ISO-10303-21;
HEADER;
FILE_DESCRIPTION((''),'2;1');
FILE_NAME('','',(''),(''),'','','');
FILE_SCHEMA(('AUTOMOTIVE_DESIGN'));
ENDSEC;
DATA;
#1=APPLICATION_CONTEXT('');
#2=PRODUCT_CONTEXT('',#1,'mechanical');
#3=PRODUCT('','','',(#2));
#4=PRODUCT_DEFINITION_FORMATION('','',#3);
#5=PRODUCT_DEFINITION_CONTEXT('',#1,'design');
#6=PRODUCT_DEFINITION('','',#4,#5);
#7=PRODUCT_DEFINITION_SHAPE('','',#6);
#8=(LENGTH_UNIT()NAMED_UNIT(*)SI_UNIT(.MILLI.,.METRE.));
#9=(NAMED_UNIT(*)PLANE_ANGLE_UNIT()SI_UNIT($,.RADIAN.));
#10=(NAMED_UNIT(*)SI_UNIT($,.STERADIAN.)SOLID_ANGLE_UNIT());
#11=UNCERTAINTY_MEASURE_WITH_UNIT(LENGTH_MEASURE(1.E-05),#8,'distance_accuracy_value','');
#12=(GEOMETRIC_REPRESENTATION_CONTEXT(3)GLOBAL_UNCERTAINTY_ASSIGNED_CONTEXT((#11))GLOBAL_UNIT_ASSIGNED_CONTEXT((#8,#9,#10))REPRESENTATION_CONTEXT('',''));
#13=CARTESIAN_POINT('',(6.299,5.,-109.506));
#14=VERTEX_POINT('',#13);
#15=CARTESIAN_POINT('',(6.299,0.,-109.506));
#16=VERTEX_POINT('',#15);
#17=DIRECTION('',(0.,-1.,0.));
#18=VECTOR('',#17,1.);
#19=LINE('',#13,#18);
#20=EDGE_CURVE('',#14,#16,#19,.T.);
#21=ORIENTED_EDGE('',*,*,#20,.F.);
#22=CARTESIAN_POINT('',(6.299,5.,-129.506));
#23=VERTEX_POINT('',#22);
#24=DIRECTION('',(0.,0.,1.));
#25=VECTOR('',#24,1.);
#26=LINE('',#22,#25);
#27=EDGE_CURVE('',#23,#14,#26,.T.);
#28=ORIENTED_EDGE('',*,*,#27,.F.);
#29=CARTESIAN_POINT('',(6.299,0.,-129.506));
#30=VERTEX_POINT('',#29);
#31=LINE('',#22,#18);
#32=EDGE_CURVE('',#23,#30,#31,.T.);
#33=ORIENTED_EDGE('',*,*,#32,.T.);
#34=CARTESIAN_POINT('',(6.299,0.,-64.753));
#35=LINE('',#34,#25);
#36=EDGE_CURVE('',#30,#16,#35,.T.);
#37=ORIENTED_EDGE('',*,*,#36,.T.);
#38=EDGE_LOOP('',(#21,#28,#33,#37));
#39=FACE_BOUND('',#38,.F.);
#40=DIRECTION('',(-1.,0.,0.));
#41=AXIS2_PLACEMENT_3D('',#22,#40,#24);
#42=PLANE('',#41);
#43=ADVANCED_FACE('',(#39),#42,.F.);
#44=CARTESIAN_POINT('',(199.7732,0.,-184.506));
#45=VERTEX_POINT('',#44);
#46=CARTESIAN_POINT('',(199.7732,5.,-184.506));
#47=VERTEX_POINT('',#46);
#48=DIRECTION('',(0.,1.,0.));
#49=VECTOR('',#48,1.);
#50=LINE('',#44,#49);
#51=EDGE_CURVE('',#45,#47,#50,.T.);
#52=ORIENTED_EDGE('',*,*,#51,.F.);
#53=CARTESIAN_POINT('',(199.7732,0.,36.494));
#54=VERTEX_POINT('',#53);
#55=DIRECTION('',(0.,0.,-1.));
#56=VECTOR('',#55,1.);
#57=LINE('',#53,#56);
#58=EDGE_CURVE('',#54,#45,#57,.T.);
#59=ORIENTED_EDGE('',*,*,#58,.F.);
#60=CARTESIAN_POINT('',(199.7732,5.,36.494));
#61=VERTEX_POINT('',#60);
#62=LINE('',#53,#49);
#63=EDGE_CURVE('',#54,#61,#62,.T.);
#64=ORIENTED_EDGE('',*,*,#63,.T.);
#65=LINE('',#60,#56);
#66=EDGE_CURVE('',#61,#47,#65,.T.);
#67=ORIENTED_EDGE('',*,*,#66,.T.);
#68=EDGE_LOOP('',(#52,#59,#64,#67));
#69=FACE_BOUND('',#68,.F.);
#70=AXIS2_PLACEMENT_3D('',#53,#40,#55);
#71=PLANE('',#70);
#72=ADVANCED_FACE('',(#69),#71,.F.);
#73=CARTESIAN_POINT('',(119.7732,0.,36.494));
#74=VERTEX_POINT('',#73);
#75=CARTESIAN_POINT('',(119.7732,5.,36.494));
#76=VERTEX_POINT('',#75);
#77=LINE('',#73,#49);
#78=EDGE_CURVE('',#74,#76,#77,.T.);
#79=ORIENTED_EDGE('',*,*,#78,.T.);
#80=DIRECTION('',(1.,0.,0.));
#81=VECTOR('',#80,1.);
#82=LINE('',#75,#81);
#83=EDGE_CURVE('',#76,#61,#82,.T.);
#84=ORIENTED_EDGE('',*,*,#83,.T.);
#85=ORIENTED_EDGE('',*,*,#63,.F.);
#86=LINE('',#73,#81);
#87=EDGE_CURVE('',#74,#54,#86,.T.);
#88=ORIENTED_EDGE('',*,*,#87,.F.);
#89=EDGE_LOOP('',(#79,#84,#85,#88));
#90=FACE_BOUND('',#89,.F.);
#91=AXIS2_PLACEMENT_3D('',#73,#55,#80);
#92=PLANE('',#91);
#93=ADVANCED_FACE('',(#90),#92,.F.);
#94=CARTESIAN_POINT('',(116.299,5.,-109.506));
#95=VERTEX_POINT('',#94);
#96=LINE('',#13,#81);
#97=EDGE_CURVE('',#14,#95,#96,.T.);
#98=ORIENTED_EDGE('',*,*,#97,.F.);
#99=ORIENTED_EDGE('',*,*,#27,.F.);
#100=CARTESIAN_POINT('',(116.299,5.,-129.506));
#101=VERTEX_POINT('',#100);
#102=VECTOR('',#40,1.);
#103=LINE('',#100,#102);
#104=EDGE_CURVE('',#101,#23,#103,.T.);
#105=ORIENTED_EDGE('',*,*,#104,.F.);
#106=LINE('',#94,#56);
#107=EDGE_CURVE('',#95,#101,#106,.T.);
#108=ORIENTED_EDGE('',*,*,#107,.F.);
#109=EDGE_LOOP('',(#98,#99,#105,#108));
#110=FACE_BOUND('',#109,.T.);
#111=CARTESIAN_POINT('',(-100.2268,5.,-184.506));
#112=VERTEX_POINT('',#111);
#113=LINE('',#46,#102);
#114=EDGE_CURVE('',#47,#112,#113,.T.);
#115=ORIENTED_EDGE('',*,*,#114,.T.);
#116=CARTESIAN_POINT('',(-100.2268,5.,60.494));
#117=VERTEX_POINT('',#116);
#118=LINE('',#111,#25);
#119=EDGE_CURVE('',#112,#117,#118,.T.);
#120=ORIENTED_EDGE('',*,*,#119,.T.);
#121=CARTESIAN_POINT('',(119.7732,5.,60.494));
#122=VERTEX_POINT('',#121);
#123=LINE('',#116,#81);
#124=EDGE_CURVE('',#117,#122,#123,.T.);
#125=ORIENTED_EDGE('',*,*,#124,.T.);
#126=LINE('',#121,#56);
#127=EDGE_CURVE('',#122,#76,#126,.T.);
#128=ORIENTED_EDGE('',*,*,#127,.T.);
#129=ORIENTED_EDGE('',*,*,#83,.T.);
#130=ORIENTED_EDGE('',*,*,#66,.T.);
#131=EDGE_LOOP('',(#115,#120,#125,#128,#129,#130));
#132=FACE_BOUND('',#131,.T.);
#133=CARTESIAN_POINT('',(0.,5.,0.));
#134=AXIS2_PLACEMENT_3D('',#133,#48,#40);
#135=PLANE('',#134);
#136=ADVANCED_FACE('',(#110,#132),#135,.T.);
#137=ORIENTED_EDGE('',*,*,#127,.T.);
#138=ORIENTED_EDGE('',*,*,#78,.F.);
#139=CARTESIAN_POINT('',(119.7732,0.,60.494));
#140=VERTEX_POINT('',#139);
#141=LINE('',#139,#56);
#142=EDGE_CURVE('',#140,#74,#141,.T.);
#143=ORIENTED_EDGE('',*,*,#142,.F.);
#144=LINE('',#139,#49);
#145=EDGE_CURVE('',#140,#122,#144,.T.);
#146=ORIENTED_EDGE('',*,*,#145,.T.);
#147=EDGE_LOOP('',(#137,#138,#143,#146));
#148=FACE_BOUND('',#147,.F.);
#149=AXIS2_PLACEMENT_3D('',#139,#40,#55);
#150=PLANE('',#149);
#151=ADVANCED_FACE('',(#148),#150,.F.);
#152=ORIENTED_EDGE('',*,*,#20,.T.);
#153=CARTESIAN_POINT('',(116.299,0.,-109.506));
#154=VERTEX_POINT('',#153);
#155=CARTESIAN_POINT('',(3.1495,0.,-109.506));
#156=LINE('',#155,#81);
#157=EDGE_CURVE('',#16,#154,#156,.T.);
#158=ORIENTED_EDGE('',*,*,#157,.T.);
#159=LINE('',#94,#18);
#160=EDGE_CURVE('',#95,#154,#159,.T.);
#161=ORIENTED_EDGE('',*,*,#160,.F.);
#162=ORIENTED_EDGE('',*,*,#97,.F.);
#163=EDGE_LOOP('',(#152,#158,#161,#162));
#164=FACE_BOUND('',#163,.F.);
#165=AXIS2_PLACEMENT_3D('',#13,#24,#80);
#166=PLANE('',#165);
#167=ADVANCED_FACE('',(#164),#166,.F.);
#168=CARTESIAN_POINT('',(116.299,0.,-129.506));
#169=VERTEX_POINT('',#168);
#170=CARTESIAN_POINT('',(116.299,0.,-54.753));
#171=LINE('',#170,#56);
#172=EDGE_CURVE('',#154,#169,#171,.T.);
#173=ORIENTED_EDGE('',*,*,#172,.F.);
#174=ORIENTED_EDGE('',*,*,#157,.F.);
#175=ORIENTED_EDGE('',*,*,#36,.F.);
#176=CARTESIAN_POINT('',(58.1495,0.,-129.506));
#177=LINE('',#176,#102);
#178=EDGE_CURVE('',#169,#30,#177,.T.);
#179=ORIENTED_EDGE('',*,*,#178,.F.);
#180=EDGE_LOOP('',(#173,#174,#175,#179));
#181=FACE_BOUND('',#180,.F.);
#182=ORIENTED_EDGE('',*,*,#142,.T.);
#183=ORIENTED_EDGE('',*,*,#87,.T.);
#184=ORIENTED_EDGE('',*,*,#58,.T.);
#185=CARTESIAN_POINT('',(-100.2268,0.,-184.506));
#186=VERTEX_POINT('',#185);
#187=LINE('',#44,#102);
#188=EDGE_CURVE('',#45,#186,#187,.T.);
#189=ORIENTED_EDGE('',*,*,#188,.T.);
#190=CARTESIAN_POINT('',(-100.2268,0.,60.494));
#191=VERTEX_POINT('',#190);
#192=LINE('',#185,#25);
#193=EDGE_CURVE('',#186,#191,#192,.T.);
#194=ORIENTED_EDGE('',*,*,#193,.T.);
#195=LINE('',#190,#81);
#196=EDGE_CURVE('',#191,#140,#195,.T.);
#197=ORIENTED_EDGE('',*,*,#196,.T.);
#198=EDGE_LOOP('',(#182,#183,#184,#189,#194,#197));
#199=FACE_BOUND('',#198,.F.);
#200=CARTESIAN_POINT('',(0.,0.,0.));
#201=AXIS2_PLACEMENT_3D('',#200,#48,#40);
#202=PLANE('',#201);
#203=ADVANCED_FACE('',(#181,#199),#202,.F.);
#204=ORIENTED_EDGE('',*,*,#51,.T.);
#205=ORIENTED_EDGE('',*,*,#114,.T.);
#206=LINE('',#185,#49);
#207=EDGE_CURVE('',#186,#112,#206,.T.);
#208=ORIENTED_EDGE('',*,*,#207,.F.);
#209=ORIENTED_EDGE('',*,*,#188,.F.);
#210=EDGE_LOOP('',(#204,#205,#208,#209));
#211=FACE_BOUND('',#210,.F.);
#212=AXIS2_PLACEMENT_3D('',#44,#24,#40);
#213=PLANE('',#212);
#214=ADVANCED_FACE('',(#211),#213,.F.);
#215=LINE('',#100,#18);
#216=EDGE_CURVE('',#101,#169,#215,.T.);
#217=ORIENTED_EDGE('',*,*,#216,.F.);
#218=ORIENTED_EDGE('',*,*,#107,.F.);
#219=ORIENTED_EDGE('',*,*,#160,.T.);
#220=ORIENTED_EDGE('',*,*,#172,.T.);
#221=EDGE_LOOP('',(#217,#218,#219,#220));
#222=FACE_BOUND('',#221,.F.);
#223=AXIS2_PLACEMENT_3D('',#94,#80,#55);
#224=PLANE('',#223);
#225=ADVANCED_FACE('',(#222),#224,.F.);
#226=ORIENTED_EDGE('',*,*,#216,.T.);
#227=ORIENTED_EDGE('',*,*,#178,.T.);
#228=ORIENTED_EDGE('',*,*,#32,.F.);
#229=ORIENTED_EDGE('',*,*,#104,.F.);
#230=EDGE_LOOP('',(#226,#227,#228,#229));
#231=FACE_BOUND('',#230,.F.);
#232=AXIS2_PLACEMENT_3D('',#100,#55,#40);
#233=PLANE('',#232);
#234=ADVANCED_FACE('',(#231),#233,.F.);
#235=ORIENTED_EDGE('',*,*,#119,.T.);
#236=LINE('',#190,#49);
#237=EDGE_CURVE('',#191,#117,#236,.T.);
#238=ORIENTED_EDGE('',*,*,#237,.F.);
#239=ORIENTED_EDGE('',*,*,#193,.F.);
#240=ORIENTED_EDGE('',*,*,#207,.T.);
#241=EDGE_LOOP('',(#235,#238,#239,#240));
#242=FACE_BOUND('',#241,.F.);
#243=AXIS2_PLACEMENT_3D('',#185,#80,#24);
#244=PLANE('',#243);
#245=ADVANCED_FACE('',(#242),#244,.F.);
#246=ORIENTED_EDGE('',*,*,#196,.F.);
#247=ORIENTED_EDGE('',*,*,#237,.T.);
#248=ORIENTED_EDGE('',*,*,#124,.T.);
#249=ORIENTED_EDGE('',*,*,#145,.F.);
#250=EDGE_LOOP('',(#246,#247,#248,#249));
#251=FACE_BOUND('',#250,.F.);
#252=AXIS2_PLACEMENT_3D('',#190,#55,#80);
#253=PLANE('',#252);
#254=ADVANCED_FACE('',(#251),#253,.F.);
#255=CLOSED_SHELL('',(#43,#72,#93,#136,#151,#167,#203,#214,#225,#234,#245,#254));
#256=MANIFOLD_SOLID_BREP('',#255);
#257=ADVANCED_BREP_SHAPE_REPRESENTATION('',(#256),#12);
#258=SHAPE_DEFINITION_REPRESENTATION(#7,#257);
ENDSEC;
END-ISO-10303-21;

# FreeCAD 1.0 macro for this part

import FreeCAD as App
import Part
import Sketcher
Q = App.Units.Quantity

doc = App.newDocument("Part")
body = doc.addObject("PartDesign::Body", "Body")

# Sketch on XZ plane
sketch1 = doc.addObject("Sketcher::SketchObject", "Sketch")
body.addObject(sketch1)
sketch1.AttachmentSupport = (doc.XZ_Plane, [""])
sketch1.MapMode = "FlatFace"
sketch1.addGeometry(Part.LineSegment(App.Vector(-100, -185, 0), App.Vector(-100, 60, 0)), False)
sketch1.addGeometry(Part.LineSegment(App.Vector(-100, 60, 0), App.Vector(120, 60, 0)), False)
sketch1.addGeometry(Part.LineSegment(App.Vector(120, 60, 0), App.Vector(120, 36, 0)), False)
sketch1.addGeometry(Part.LineSegment(App.Vector(120, 36, 0), App.Vector(200, 36, 0)), False)
sketch1.addGeometry(Part.LineSegment(App.Vector(200, 36, 0), App.Vector(200, -185, 0)), False)
sketch1.addGeometry(Part.LineSegment(App.Vector(200, -185, 0), App.Vector(-100, -185, 0)), False)
sketch1.addConstraint(Sketcher.Constraint("Coincident", 0, 2, 1, 1))
sketch1.addConstraint(Sketcher.Constraint("Coincident", 1, 2, 2, 1))
sketch1.addConstraint(Sketcher.Constraint("Coincident", 2, 2, 3, 1))
sketch1.addConstraint(Sketcher.Constraint("Coincident", 3, 2, 4, 1))
sketch1.addConstraint(Sketcher.Constraint("Coincident", 4, 2, 5, 1))
sketch1.addConstraint(Sketcher.Constraint("Coincident", 5, 2, 0, 1))
sketch1.addConstraint(Sketcher.Constraint("Vertical", 0))
sketch1.addConstraint(Sketcher.Constraint("Horizontal", 1))
sketch1.addConstraint(Sketcher.Constraint("Vertical", 2))
sketch1.addConstraint(Sketcher.Constraint("Horizontal", 3))
sketch1.addConstraint(Sketcher.Constraint("Vertical", 4))
sketch1.addConstraint(Sketcher.Constraint("Horizontal", 5))
sketch1.addConstraint(Sketcher.Constraint("DistanceX", 3, 1, 3, 2, Q("80 mm")))
sketch1.addConstraint(Sketcher.Constraint("DistanceX", 5, 2, 5, 1, Q("300 mm")))
sketch1.addConstraint(Sketcher.Constraint("DistanceY", 0, 1, 0, 2, Q("245 mm")))
sketch1.addConstraint(Sketcher.Constraint("DistanceY", 4, 2, 4, 1, Q("221 mm")))
sketch1.addConstraint(Sketcher.Constraint("DistanceY", -1, 1, 0, 2, Q("60.494 mm")))
sketch1.addConstraint(Sketcher.Constraint("DistanceX", 0, 2, -1, 1, Q("100.2268 mm")))
pad1 = doc.addObject("PartDesign::Pad", "Pad")
body.addObject(pad1)
pad1.Profile = sketch1
pad1.Length = 5
pad1.Reversed = True

# Sketch on XZ plane
sketch2 = doc.addObject("Sketcher::SketchObject", "Sketch001")
body.addObject(sketch2)
sketch2.AttachmentSupport = (doc.XZ_Plane, [""])
sketch2.MapMode = "FlatFace"
sketch2.AttachmentOffset = App.Placement(App.Vector(0, 0, -5), App.Rotation())
sketch2.addGeometry(Part.LineSegment(App.Vector(6, -130, 0), App.Vector(6, -110, 0)), False)
sketch2.addGeometry(Part.LineSegment(App.Vector(6, -110, 0), App.Vector(116, -110, 0)), False)
sketch2.addGeometry(Part.LineSegment(App.Vector(116, -110, 0), App.Vector(116, -130, 0)), False)
sketch2.addGeometry(Part.LineSegment(App.Vector(116, -130, 0), App.Vector(6, -130, 0)), False)
sketch2.addConstraint(Sketcher.Constraint("Coincident", 0, 2, 1, 1))
sketch2.addConstraint(Sketcher.Constraint("Coincident", 1, 2, 2, 1))
sketch2.addConstraint(Sketcher.Constraint("Coincident", 2, 2, 3, 1))
sketch2.addConstraint(Sketcher.Constraint("Coincident", 3, 2, 0, 1))
sketch2.addConstraint(Sketcher.Constraint("Vertical", 0))
sketch2.addConstraint(Sketcher.Constraint("Horizontal", 1))
sketch2.addConstraint(Sketcher.Constraint("Vertical", 2))
sketch2.addConstraint(Sketcher.Constraint("Horizontal", 3))
sketch2.addConstraint(Sketcher.Constraint("DistanceX", 1, 1, 1, 2, Q("110 mm")))
sketch2.addConstraint(Sketcher.Constraint("DistanceY", 0, 1, 0, 2, Q("20 mm")))
sketch2.addConstraint(Sketcher.Constraint("DistanceX", -1, 1, 0, 2, Q("6.299 mm")))
sketch2.addConstraint(Sketcher.Constraint("DistanceY", 0, 2, -1, 1, Q("109.506 mm")))
pocket1 = doc.addObject("PartDesign::Pocket", "Pocket")
body.addObject(pocket1)
pocket1.Profile = sketch2
pocket1.Type = "ThroughAll"
pocket1.Reversed = True

doc.recompute()
